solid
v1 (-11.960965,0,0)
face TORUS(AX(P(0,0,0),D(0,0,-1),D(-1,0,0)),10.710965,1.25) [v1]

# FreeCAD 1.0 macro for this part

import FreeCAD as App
import Part
import Sketcher
Q = App.Units.Quantity

doc = App.newDocument("Part")
body = doc.addObject("PartDesign::Body", "Body")

# Sketch on XZ plane
sketch1 = body.newObject("Sketcher::SketchObject", "Sketch")
sketch1.AttachmentSupport = (doc.getObject("XZ_Plane"), [""])
sketch1.MapMode = "FlatFace"
sketch1.addGeometry(Part.Circle(App.Vector(10.7, 0, 0), App.Vector(0, 0, 1), 1.2), False)
sketch1.addConstraint([
    Sketcher.Constraint("PointOnObject", 0, 3, -1),
    Sketcher.Constraint("Diameter", 0, Q("2.5 mm")),
    Sketcher.Constraint("DistanceX", -1, 1, 0, 3, Q("10.710965 mm")),
])
revolution = body.newObject("PartDesign::Revolution", "Revolution")
revolution.Profile = sketch1
revolution.ReferenceAxis = (sketch1, ["V_Axis"])
revolution.Angle = 360

doc.recompute()
